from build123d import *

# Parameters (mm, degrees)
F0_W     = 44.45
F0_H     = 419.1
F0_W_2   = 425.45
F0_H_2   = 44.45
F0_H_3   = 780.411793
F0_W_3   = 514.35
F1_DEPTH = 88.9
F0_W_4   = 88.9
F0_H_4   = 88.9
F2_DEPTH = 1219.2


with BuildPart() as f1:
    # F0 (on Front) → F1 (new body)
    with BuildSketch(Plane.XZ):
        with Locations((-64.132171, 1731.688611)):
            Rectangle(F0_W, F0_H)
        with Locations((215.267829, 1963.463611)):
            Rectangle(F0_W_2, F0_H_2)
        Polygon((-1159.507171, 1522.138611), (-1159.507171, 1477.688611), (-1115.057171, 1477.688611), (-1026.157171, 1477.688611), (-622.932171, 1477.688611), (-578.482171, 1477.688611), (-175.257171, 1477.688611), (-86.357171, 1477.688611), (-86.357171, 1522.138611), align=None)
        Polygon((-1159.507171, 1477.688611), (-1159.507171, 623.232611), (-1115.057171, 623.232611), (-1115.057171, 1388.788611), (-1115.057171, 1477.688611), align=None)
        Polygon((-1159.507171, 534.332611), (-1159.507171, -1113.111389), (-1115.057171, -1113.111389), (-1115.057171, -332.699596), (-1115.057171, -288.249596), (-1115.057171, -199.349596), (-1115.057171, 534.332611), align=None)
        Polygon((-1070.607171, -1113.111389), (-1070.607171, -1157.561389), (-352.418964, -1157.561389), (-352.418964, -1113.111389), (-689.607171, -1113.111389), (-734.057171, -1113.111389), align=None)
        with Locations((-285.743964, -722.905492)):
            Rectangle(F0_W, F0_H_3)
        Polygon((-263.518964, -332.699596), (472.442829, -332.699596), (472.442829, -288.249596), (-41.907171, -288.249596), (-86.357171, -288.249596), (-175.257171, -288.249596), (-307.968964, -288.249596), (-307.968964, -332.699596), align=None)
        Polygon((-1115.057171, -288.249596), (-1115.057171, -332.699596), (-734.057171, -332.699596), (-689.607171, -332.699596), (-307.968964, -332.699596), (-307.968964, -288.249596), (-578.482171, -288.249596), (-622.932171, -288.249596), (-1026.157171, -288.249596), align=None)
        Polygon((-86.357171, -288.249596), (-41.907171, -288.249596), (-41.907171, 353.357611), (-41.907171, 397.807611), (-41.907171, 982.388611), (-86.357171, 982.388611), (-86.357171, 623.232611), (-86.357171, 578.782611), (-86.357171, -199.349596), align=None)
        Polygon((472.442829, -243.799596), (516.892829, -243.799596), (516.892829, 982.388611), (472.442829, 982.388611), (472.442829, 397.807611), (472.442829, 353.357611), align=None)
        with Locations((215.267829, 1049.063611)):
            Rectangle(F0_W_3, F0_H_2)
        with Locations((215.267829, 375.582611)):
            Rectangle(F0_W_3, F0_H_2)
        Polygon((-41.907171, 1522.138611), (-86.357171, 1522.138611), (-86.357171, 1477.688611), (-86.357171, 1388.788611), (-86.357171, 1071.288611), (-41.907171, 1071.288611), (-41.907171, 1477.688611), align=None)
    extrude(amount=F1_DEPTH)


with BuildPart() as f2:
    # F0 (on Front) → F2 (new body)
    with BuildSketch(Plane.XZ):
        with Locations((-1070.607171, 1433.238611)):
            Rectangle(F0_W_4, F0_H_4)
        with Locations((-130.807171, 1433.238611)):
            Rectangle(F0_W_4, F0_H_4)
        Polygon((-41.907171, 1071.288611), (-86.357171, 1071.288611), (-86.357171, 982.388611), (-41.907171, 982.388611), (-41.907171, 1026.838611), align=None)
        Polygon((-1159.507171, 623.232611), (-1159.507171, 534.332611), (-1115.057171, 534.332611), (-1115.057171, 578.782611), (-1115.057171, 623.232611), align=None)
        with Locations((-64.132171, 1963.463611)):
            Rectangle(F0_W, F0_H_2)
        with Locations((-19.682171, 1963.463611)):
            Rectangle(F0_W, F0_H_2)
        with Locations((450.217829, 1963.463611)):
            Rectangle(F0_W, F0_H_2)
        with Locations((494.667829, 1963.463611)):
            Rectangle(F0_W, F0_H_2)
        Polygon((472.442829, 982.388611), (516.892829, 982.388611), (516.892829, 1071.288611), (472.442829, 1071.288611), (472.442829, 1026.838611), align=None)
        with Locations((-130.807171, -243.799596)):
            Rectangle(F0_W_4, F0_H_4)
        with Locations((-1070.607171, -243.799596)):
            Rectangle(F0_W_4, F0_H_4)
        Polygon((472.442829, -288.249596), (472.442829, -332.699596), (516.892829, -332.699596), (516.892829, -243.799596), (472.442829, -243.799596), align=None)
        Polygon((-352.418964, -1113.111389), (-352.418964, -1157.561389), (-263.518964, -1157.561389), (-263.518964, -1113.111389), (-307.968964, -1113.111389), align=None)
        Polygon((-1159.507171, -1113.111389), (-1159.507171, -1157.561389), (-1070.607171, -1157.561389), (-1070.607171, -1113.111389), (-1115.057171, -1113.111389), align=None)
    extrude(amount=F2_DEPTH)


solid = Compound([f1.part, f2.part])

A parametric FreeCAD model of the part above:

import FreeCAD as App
import Part
import Sketcher

V = App.Vector
Q = App.Units.Quantity

doc = App.newDocument("Part")
body = doc.addObject("PartDesign::Body", "Body")
body.AllowCompound = True

# Sketch on XZ plane
sketch1 = body.newObject("Sketcher::SketchObject", "Sketch")
sketch1.AttachmentSupport = (doc.getObject("XZ_Plane"), [""])
sketch1.MapMode = "FlatFace"
sketch1.addGeometry([
    Part.LineSegment(V(-86, 1941, 0), V(-86, 1522, 0)),  # 0
    Part.LineSegment(V(-86, 1522, 0), V(-1160, 1522, 0)),  # 1
    Part.LineSegment(V(-1160, 1522, 0), V(-1160, 623, 0)),  # 2
    Part.LineSegment(V(-1160, 623, 0), V(-1115, 623, 0)),  # 3
    Part.LineSegment(V(-1115, 623, 0), V(-1115, 1478, 0)),  # 4
    Part.LineSegment(V(-1115, 1478, 0), V(-86, 1478, 0)),  # 5
    Part.LineSegment(V(-86, 1478, 0), V(-86, 1071, 0)),  # 6
    Part.LineSegment(V(-86, 1071, 0), V(-42, 1071, 0)),  # 7
    Part.LineSegment(V(-42, 1071, 0), V(-42, 1941, 0)),  # 8
    Part.LineSegment(V(-42, 1941, 0), V(-86, 1941, 0)),  # 9
    Part.LineSegment(V(3, 1986, 0), V(3, 1941, 0)),  # 10
    Part.LineSegment(V(3, 1941, 0), V(428, 1941, 0)),  # 11
    Part.LineSegment(V(428, 1941, 0), V(428, 1986, 0)),  # 12
    Part.LineSegment(V(428, 1986, 0), V(3, 1986, 0)),  # 13
    Part.LineSegment(V(-1160, 534, 0), V(-1160, -1113, 0)),  # 14
    Part.LineSegment(V(-1160, -1113, 0), V(-1115, -1113, 0)),  # 15
    Part.LineSegment(V(-1115, -1113, 0), V(-1115, -333, 0)),  # 16
    Part.LineSegment(V(-1115, -333, 0), V(-308, -333, 0)),  # 17
    Part.LineSegment(V(-308, -333, 0), V(-308, -1113, 0)),  # 18
    Part.LineSegment(V(-308, -1113, 0), V(-264, -1113, 0)),  # 19
    Part.LineSegment(V(-264, -1113, 0), V(-264, -333, 0)),  # 20
    Part.LineSegment(V(-264, -333, 0), V(472, -333, 0)),  # 21
    Part.LineSegment(V(472, -333, 0), V(472, -288, 0)),  # 22
    Part.LineSegment(V(472, -288, 0), V(-42, -288, 0)),  # 23
    Part.LineSegment(V(-42, -288, 0), V(-42, 353, 0)),  # 24
    Part.LineSegment(V(-42, 353, 0), V(472, 353, 0)),  # 25
    Part.LineSegment(V(472, 353, 0), V(472, -244, 0)),  # 26
    Part.LineSegment(V(472, -244, 0), V(517, -244, 0)),  # 27
    Part.LineSegment(V(517, -244, 0), V(517, 982, 0)),  # 28
    Part.LineSegment(V(517, 982, 0), V(472, 982, 0)),  # 29
    Part.LineSegment(V(472, 982, 0), V(472, 398, 0)),  # 30
    Part.LineSegment(V(472, 398, 0), V(-42, 398, 0)),  # 31
    Part.LineSegment(V(-42, 398, 0), V(-42, 982, 0)),  # 32
    Part.LineSegment(V(-42, 982, 0), V(-86, 982, 0)),  # 33
    Part.LineSegment(V(-86, 982, 0), V(-86, -288, 0)),  # 34
    Part.LineSegment(V(-86, -288, 0), V(-1115, -288, 0)),  # 35
    Part.LineSegment(V(-1115, -288, 0), V(-1115, 534, 0)),  # 36
    Part.LineSegment(V(-1115, 534, 0), V(-1160, 534, 0)),  # 37
    Part.LineSegment(V(-1071, -1113, 0), V(-1071, -1158, 0)),  # 38
    Part.LineSegment(V(-1071, -1158, 0), V(-352, -1158, 0)),  # 39
    Part.LineSegment(V(-352, -1158, 0), V(-352, -1113, 0)),  # 40
    Part.LineSegment(V(-352, -1113, 0), V(-1071, -1113, 0)),  # 41
    Part.LineSegment(V(-42, 1071, 0), V(-42, 1027, 0)),  # 42
    Part.LineSegment(V(-42, 1027, 0), V(472, 1027, 0)),  # 43
    Part.LineSegment(V(472, 1027, 0), V(472, 1071, 0)),  # 44
    Part.LineSegment(V(472, 1071, 0), V(-42, 1071, 0)),  # 45
], False)
sketch1.addConstraint([
    Sketcher.Constraint("Coincident", 0, 2, 1, 1),
    Sketcher.Constraint("Coincident", 1, 2, 2, 1),
    Sketcher.Constraint("Coincident", 2, 2, 3, 1),
    Sketcher.Constraint("Coincident", 3, 2, 4, 1),
    Sketcher.Constraint("Coincident", 4, 2, 5, 1),
    Sketcher.Constraint("Coincident", 5, 2, 6, 1),
    Sketcher.Constraint("Coincident", 6, 2, 7, 1),
    Sketcher.Constraint("Coincident", 7, 2, 8, 1),
    Sketcher.Constraint("Coincident", 8, 2, 9, 1),
    Sketcher.Constraint("Coincident", 9, 2, 0, 1),
    Sketcher.Constraint("Coincident", 10, 2, 11, 1),
    Sketcher.Constraint("Coincident", 11, 2, 12, 1),
    Sketcher.Constraint("Coincident", 12, 2, 13, 1),
    Sketcher.Constraint("Coincident", 13, 2, 10, 1),
    Sketcher.Constraint("Coincident", 14, 2, 15, 1),
    Sketcher.Constraint("Coincident", 15, 2, 16, 1),
    Sketcher.Constraint("Coincident", 16, 2, 17, 1),
    Sketcher.Constraint("Coincident", 17, 2, 18, 1),
    Sketcher.Constraint("Coincident", 18, 2, 19, 1),
    Sketcher.Constraint("Coincident", 19, 2, 20, 1),
    Sketcher.Constraint("Coincident", 20, 2, 21, 1),
    Sketcher.Constraint("Coincident", 21, 2, 22, 1),
    Sketcher.Constraint("Coincident", 22, 2, 23, 1),
    Sketcher.Constraint("Coincident", 23, 2, 24, 1),
    Sketcher.Constraint("Coincident", 24, 2, 25, 1),
    Sketcher.Constraint("Coincident", 25, 2, 26, 1),
    Sketcher.Constraint("Coincident", 26, 2, 27, 1),
    Sketcher.Constraint("Coincident", 27, 2, 28, 1),
    Sketcher.Constraint("Coincident", 28, 2, 29, 1),
    Sketcher.Constraint("Coincident", 29, 2, 30, 1),
    Sketcher.Constraint("Coincident", 30, 2, 31, 1),
    Sketcher.Constraint("Coincident", 31, 2, 32, 1),
    Sketcher.Constraint("Coincident", 32, 2, 33, 1),
    Sketcher.Constraint("Coincident", 33, 2, 34, 1),
    Sketcher.Constraint("Coincident", 34, 2, 35, 1),
    Sketcher.Constraint("Coincident", 35, 2, 36, 1),
    Sketcher.Constraint("Coincident", 36, 2, 37, 1),
    Sketcher.Constraint("Coincident", 37, 2, 14, 1),
    Sketcher.Constraint("Coincident", 38, 2, 39, 1),
    Sketcher.Constraint("Coincident", 39, 2, 40, 1),
    Sketcher.Constraint("Coincident", 40, 2, 41, 1),
    Sketcher.Constraint("Coincident", 41, 2, 38, 1),
    Sketcher.Constraint("Coincident", 42, 2, 43, 1),
    Sketcher.Constraint("Coincident", 43, 2, 44, 1),
    Sketcher.Constraint("Coincident", 44, 2, 45, 1),
    Sketcher.Constraint("Coincident", 45, 2, 42, 1),
    Sketcher.Constraint("Vertical", 0),
    Sketcher.Constraint("Horizontal", 1),
    Sketcher.Constraint("Vertical", 2),
    Sketcher.Constraint("Horizontal", 3),
    Sketcher.Constraint("Vertical", 4),
    Sketcher.Constraint("Horizontal", 5),
    Sketcher.Constraint("Vertical", 6),
    Sketcher.Constraint("Horizontal", 7),
    Sketcher.Constraint("Vertical", 8),
    Sketcher.Constraint("Horizontal", 9),
    Sketcher.Constraint("Vertical", 10),
    Sketcher.Constraint("Horizontal", 11),
    Sketcher.Constraint("Vertical", 12),
    Sketcher.Constraint("Horizontal", 13),
    Sketcher.Constraint("Vertical", 14),
    Sketcher.Constraint("Horizontal", 15),
    Sketcher.Constraint("Vertical", 16),
    Sketcher.Constraint("Horizontal", 17),
    Sketcher.Constraint("Vertical", 18),
    Sketcher.Constraint("Horizontal", 19),
    Sketcher.Constraint("Vertical", 20),
    Sketcher.Constraint("Horizontal", 21),
    Sketcher.Constraint("Vertical", 22),
    Sketcher.Constraint("Horizontal", 23),
    Sketcher.Constraint("Vertical", 24),
    Sketcher.Constraint("Horizontal", 25),
    Sketcher.Constraint("Vertical", 26),
    Sketcher.Constraint("Horizontal", 27),
    Sketcher.Constraint("Vertical", 28),
    Sketcher.Constraint("Horizontal", 29),
    Sketcher.Constraint("Vertical", 30),
    Sketcher.Constraint("Horizontal", 31),
    Sketcher.Constraint("Vertical", 32),
    Sketcher.Constraint("Horizontal", 33),
    Sketcher.Constraint("Vertical", 34),
    Sketcher.Constraint("Horizontal", 35),
    Sketcher.Constraint("Vertical", 36),
    Sketcher.Constraint("Horizontal", 37),
    Sketcher.Constraint("Vertical", 38),
    Sketcher.Constraint("Horizontal", 39),
    Sketcher.Constraint("Vertical", 40),
    Sketcher.Constraint("Horizontal", 41),
    Sketcher.Constraint("Vertical", 42),
    Sketcher.Constraint("Horizontal", 43),
    Sketcher.Constraint("Vertical", 44),
    Sketcher.Constraint("Horizontal", 45),
    Sketcher.Constraint("Coincident", 45, 2, 7, 2),
    Sketcher.Constraint("Horizontal", 9, 2, 10, 2),
    Sketcher.Constraint("Horizontal", 15, 2, 18, 2),
    Sketcher.Constraint("Horizontal", 17, 2, 20, 2),
    Sketcher.Constraint("Horizontal", 29, 2, 32, 2),
    Sketcher.Constraint("Horizontal", 23, 2, 34, 2),
    Sketcher.Constraint("Horizontal", 19, 2, 40, 2),
    Sketcher.Constraint("Vertical", 0, 2, 5, 2),
    Sketcher.Constraint("Vertical", 2, 2, 14, 2),
    Sketcher.Constraint("Vertical", 4, 2, 15, 2),
    Sketcher.Constraint("Vertical", 8, 2, 23, 2),
    Sketcher.Constraint("Vertical", 22, 2, 25, 2),
    Sketcher.Constraint("Vertical", 26, 2, 29, 2),
    Sketcher.Constraint("Vertical", 24, 2, 31, 2),
    Sketcher.Constraint("Vertical", 9, 2, 33, 2),
    Sketcher.Constraint("Vertical", 16, 2, 35, 2),
    Sketcher.Constraint("Vertical", 30, 2, 43, 2),
    Sketcher.Constraint("Equal", 3, 7),
    Sketcher.Constraint("Equal", 15, 19),
    Sketcher.Constraint("Equal", 19, 27),
    Sketcher.Constraint("Equal", 37, 10),
    Sketcher.Constraint("Equal", 12, 22),
    Sketcher.Constraint("Equal", 22, 38),
    Sketcher.Constraint("Equal", 40, 42),
    Sketcher.Constraint("DistanceY", 6, 2, 6, 1, Q("16 in")),
    Sketcher.Constraint("DistanceX", 5, 1, 5, 2, Q("40.5 in")),
    Sketcher.Constraint("DistanceY", 0, 2, 0, 1, Q("16.5 in")),
    Sketcher.Constraint("DistanceY", 14, 2, 6, 2, Q("86 in")),
    Sketcher.Constraint("DistanceX", 14, 2, 7, 2, Q("44 in")),
    Sketcher.Constraint("DistanceX", 23, 2, 27, 2, Q("22 in")),
    Sketcher.Constraint("DistanceX", 11, 1, 11, 2, Q("16.75 in")),
    Sketcher.Constraint("DistanceY", 2, 2, 2, 1, Q("35.39 in")),
    Sketcher.Constraint("DistanceY", 4, 1, 4, 2, Q("33.64 in")),
    Sketcher.Constraint("DistanceY", 14, 2, 14, 1, Q("64.86 in")),
    Sketcher.Constraint("DistanceX", 9, 2, 10, 2, Q("3.5 in")),
    Sketcher.Constraint("DistanceY", 21, 2, 26, 2, Q("3.5 in")),
    Sketcher.Constraint("DistanceY", 28, 2, 7, 2, Q("3.5 in")),
    Sketcher.Constraint("DistanceX", 14, 2, 38, 2, Q("3.5 in")),
    Sketcher.Constraint("DistanceX", 39, 2, 19, 2, Q("3.5 in")),
    Sketcher.Constraint("DistanceY", 30, 2, 30, 1, Q("23.015 in")),
    Sketcher.Constraint("DistanceY", 25, 2, 30, 2, Q("1.75 in")),
    Sketcher.Constraint("DistanceX", 17, 1, 17, 2, 807.088207),
    Sketcher.Constraint("DistanceY", 16, 1, 16, 2, 780.411793),
    Sketcher.Constraint("DistanceX", 0, 2, -1, 1, 86.357171),
    Sketcher.Constraint("DistanceY", -1, 1, 0, 2, 1522.138611),
])
pad1 = body.newObject("PartDesign::Pad", "Pad")
pad1.Profile = sketch1
pad1.Length = Q("3.5 in")
body2 = doc.addObject("PartDesign::Body", "Body001")
body2.AllowCompound = True

# Sketch on XZ plane
sketch2 = body2.newObject("Sketcher::SketchObject", "Sketch001")
sketch2.AttachmentSupport = (doc.getObject("XZ_Plane001"), [""])
sketch2.MapMode = "FlatFace"
sketch2.addGeometry([
    Part.LineSegment(V(-1115, 1478, 0), V(-1115, 1389, 0)),  # 0
    Part.LineSegment(V(-1115, 1389, 0), V(-1026, 1389, 0)),  # 1
    Part.LineSegment(V(-1026, 1389, 0), V(-1026, 1478, 0)),  # 2
    Part.LineSegment(V(-1026, 1478, 0), V(-1115, 1478, 0)),  # 3
    Part.LineSegment(V(-175, 1478, 0), V(-175, 1389, 0)),  # 4
    Part.LineSegment(V(-175, 1389, 0), V(-86, 1389, 0)),  # 5
    Part.LineSegment(V(-86, 1389, 0), V(-86, 1478, 0)),  # 6
    Part.LineSegment(V(-86, 1478, 0), V(-175, 1478, 0)),  # 7
    Part.LineSegment(V(-42, 1071, 0), V(-86, 1071, 0)),  # 8
    Part.LineSegment(V(-86, 1071, 0), V(-86, 982, 0)),  # 9
    Part.LineSegment(V(-86, 982, 0), V(-42, 982, 0)),  # 10
    Part.LineSegment(V(-42, 982, 0), V(-42, 1071, 0)),  # 11
    Part.LineSegment(V(-1160, 623, 0), V(-1160, 534, 0)),  # 12
    Part.LineSegment(V(-1160, 534, 0), V(-1115, 534, 0)),  # 13
    Part.LineSegment(V(-1115, 534, 0), V(-1115, 623, 0)),  # 14
    Part.LineSegment(V(-1115, 623, 0), V(-1160, 623, 0)),  # 15
    Part.LineSegment(V(-86, 1986, 0), V(-86, 1941, 0)),  # 16
    Part.LineSegment(V(-86, 1941, 0), V(3, 1941, 0)),  # 17
    Part.LineSegment(V(3, 1941, 0), V(3, 1986, 0)),  # 18
    Part.LineSegment(V(3, 1986, 0), V(-86, 1986, 0)),  # 19
    Part.LineSegment(V(428, 1986, 0), V(428, 1941, 0)),  # 20
    Part.LineSegment(V(428, 1941, 0), V(517, 1941, 0)),  # 21
    Part.LineSegment(V(517, 1941, 0), V(517, 1986, 0)),  # 22
    Part.LineSegment(V(517, 1986, 0), V(428, 1986, 0)),  # 23
    Part.LineSegment(V(472, 982, 0), V(517, 982, 0)),  # 24
    Part.LineSegment(V(517, 982, 0), V(517, 1071, 0)),  # 25
    Part.LineSegment(V(517, 1071, 0), V(472, 1071, 0)),  # 26
    Part.LineSegment(V(472, 1071, 0), V(472, 982, 0)),  # 27
    Part.LineSegment(V(-175, -199, 0), V(-175, -288, 0)),  # 28
    Part.LineSegment(V(-175, -288, 0), V(-86, -288, 0)),  # 29
    Part.LineSegment(V(-86, -288, 0), V(-86, -199, 0)),  # 30
    Part.LineSegment(V(-86, -199, 0), V(-175, -199, 0)),  # 31
    Part.LineSegment(V(-1115, -199, 0), V(-1115, -288, 0)),  # 32
    Part.LineSegment(V(-1115, -288, 0), V(-1026, -288, 0)),  # 33
    Part.LineSegment(V(-1026, -288, 0), V(-1026, -199, 0)),  # 34
    Part.LineSegment(V(-1026, -199, 0), V(-1115, -199, 0)),  # 35
    Part.LineSegment(V(472, -333, 0), V(517, -333, 0)),  # 36
    Part.LineSegment(V(517, -333, 0), V(517, -244, 0)),  # 37
    Part.LineSegment(V(517, -244, 0), V(472, -244, 0)),  # 38
    Part.LineSegment(V(472, -244, 0), V(472, -333, 0)),  # 39
    Part.LineSegment(V(-352, -1113, 0), V(-352, -1158, 0)),  # 40
    Part.LineSegment(V(-352, -1158, 0), V(-264, -1158, 0)),  # 41
    Part.LineSegment(V(-264, -1158, 0), V(-264, -1113, 0)),  # 42
    Part.LineSegment(V(-264, -1113, 0), V(-352, -1113, 0)),  # 43
    Part.LineSegment(V(-1160, -1113, 0), V(-1160, -1158, 0)),  # 44
    Part.LineSegment(V(-1160, -1158, 0), V(-1071, -1158, 0)),  # 45
    Part.LineSegment(V(-1071, -1158, 0), V(-1071, -1113, 0)),  # 46
    Part.LineSegment(V(-1071, -1113, 0), V(-1160, -1113, 0)),  # 47
], False)
sketch2.addConstraint([
    Sketcher.Constraint("Coincident", 0, 2, 1, 1),
    Sketcher.Constraint("Coincident", 1, 2, 2, 1),
    Sketcher.Constraint("Coincident", 2, 2, 3, 1),
    Sketcher.Constraint("Coincident", 3, 2, 0, 1),
    Sketcher.Constraint("Coincident", 4, 2, 5, 1),
    Sketcher.Constraint("Coincident", 5, 2, 6, 1),
    Sketcher.Constraint("Coincident", 6, 2, 7, 1),
    Sketcher.Constraint("Coincident", 7, 2, 4, 1),
    Sketcher.Constraint("Coincident", 8, 2, 9, 1),
    Sketcher.Constraint("Coincident", 9, 2, 10, 1),
    Sketcher.Constraint("Coincident", 10, 2, 11, 1),
    Sketcher.Constraint("Coincident", 11, 2, 8, 1),
    Sketcher.Constraint("Coincident", 12, 2, 13, 1),
    Sketcher.Constraint("Coincident", 13, 2, 14, 1),
    Sketcher.Constraint("Coincident", 14, 2, 15, 1),
    Sketcher.Constraint("Coincident", 15, 2, 12, 1),
    Sketcher.Constraint("Coincident", 16, 2, 17, 1),
    Sketcher.Constraint("Coincident", 17, 2, 18, 1),
    Sketcher.Constraint("Coincident", 18, 2, 19, 1),
    Sketcher.Constraint("Coincident", 19, 2, 16, 1),
    Sketcher.Constraint("Coincident", 20, 2, 21, 1),
    Sketcher.Constraint("Coincident", 21, 2, 22, 1),
    Sketcher.Constraint("Coincident", 22, 2, 23, 1),
    Sketcher.Constraint("Coincident", 23, 2, 20, 1),
    Sketcher.Constraint("Coincident", 24, 2, 25, 1),
    Sketcher.Constraint("Coincident", 25, 2, 26, 1),
    Sketcher.Constraint("Coincident", 26, 2, 27, 1),
    Sketcher.Constraint("Coincident", 27, 2, 24, 1),
    Sketcher.Constraint("Coincident", 28, 2, 29, 1),
    Sketcher.Constraint("Coincident", 29, 2, 30, 1),
    Sketcher.Constraint("Coincident", 30, 2, 31, 1),
    Sketcher.Constraint("Coincident", 31, 2, 28, 1),
    Sketcher.Constraint("Coincident", 32, 2, 33, 1),
    Sketcher.Constraint("Coincident", 33, 2, 34, 1),
    Sketcher.Constraint("Coincident", 34, 2, 35, 1),
    Sketcher.Constraint("Coincident", 35, 2, 32, 1),
    Sketcher.Constraint("Coincident", 36, 2, 37, 1),
    Sketcher.Constraint("Coincident", 37, 2, 38, 1),
    Sketcher.Constraint("Coincident", 38, 2, 39, 1),
    Sketcher.Constraint("Coincident", 39, 2, 36, 1),
    Sketcher.Constraint("Coincident", 40, 2, 41, 1),
    Sketcher.Constraint("Coincident", 41, 2, 42, 1),
    Sketcher.Constraint("Coincident", 42, 2, 43, 1),
    Sketcher.Constraint("Coincident", 43, 2, 40, 1),
    Sketcher.Constraint("Coincident", 44, 2, 45, 1),
    Sketcher.Constraint("Coincident", 45, 2, 46, 1),
    Sketcher.Constraint("Coincident", 46, 2, 47, 1),
    Sketcher.Constraint("Coincident", 47, 2, 44, 1),
    Sketcher.Constraint("Vertical", 0),
    Sketcher.Constraint("Horizontal", 1),
    Sketcher.Constraint("Vertical", 2),
    Sketcher.Constraint("Horizontal", 3),
    Sketcher.Constraint("Vertical", 4),
    Sketcher.Constraint("Horizontal", 5),
    Sketcher.Constraint("Vertical", 6),
    Sketcher.Constraint("Horizontal", 7),
    Sketcher.Constraint("Horizontal", 8),
    Sketcher.Constraint("Vertical", 9),
    Sketcher.Constraint("Horizontal", 10),
    Sketcher.Constraint("Vertical", 11),
    Sketcher.Constraint("Vertical", 12),
    Sketcher.Constraint("Horizontal", 13),
    Sketcher.Constraint("Vertical", 14),
    Sketcher.Constraint("Horizontal", 15),
    Sketcher.Constraint("Vertical", 16),
    Sketcher.Constraint("Horizontal", 17),
    Sketcher.Constraint("Vertical", 18),
    Sketcher.Constraint("Horizontal", 19),
    Sketcher.Constraint("Vertical", 20),
    Sketcher.Constraint("Horizontal", 21),
    Sketcher.Constraint("Vertical", 22),
    Sketcher.Constraint("Horizontal", 23),
    Sketcher.Constraint("Horizontal", 24),
    Sketcher.Constraint("Vertical", 25),
    Sketcher.Constraint("Horizontal", 26),
    Sketcher.Constraint("Vertical", 27),
    Sketcher.Constraint("Vertical", 28),
    Sketcher.Constraint("Horizontal", 29),
    Sketcher.Constraint("Vertical", 30),
    Sketcher.Constraint("Horizontal", 31),
    Sketcher.Constraint("Vertical", 32),
    Sketcher.Constraint("Horizontal", 33),
    Sketcher.Constraint("Vertical", 34),
    Sketcher.Constraint("Horizontal", 35),
    Sketcher.Constraint("Horizontal", 36),
    Sketcher.Constraint("Vertical", 37),
    Sketcher.Constraint("Horizontal", 38),
    Sketcher.Constraint("Vertical", 39),
    Sketcher.Constraint("Vertical", 40),
    Sketcher.Constraint("Horizontal", 41),
    Sketcher.Constraint("Vertical", 42),
    Sketcher.Constraint("Horizontal", 43),
    Sketcher.Constraint("Vertical", 44),
    Sketcher.Constraint("Horizontal", 45),
    Sketcher.Constraint("Vertical", 46),
    Sketcher.Constraint("Horizontal", 47),
    Sketcher.Constraint("Horizontal", 1, 2, 4, 2),
    Sketcher.Constraint("Horizontal", 3, 2, 6, 2),
    Sketcher.Constraint("Horizontal", 17, 2, 20, 2),
    Sketcher.Constraint("Horizontal", 19, 2, 22, 2),
    Sketcher.Constraint("Horizontal", 10, 2, 24, 2),
    Sketcher.Constraint("Horizontal", 11, 2, 25, 2),
    Sketcher.Constraint("Horizontal", 29, 2, 32, 2),
    Sketcher.Constraint("Horizontal", 31, 2, 34, 2),
    Sketcher.Constraint("Horizontal", 41, 2, 44, 2),
    Sketcher.Constraint("Horizontal", 43, 2, 46, 2),
    Sketcher.Constraint("Vertical", 6, 2, 8, 2),
    Sketcher.Constraint("Vertical", 3, 2, 13, 2),
    Sketcher.Constraint("Vertical", 9, 2, 16, 2),
    Sketcher.Constraint("Vertical", 22, 2, 24, 2),
    Sketcher.Constraint("Vertical", 7, 2, 28, 2),
    Sketcher.Constraint("Vertical", 19, 2, 29, 2),
    Sketcher.Constraint("Vertical", 14, 2, 32, 2),
    Sketcher.Constraint("Vertical", 2, 2, 33, 2),
    Sketcher.Constraint("Vertical", 25, 2, 36, 2),
    Sketcher.Constraint("Vertical", 27, 2, 38, 2),
    Sketcher.Constraint("Vertical", 15, 2, 44, 2),
    Sketcher.Constraint("Equal", 3, 5),
    Sketcher.Constraint("Equal", 10, 13),
    Sketcher.Constraint("Equal", 7, 17),
    Sketcher.Constraint("Equal", 19, 21),
    Sketcher.Constraint("Equal", 15, 24),
    Sketcher.Constraint("Equal", 35, 41),
    Sketcher.Constraint("Equal", 43, 45),
    Sketcher.Constraint("Equal", 47, 0),
    Sketcher.Constraint("Equal", 6, 9),
    Sketcher.Constraint("Equal", 11, 12),
    Sketcher.Constraint("Equal", 38, 16),
    Sketcher.Constraint("Equal", 27, 28),
    Sketcher.Constraint("Equal", 34, 37),
    Sketcher.Constraint("Equal", 22, 40),
    Sketcher.Constraint("DistanceX", 1, 1, 1, 2, Q("3.5 in")),
    Sketcher.Constraint("DistanceX", 0, 2, 4, 2, Q("37 in")),
    Sketcher.Constraint("DistanceY", 8, 2, 6, 2, Q("16 in")),
    Sketcher.Constraint("DistanceY", 6, 2, 18, 2, Q("20 in")),
    Sketcher.Constraint("DistanceX", 10, 2, 24, 2, Q("22 in")),
    Sketcher.Constraint("DistanceX", 8, 2, 8, 1, Q("1.75 in")),
    Sketcher.Constraint("DistanceY", 12, 2, 0, 2, Q("33.64 in")),
    Sketcher.Constraint("DistanceY", 36, 2, 29, 2, Q("1.75 in")),
    Sketcher.Constraint("DistanceX", 0, 2, -1, 1, 1115.057171),
    Sketcher.Constraint("DistanceY", -1, 1, 0, 2, 1388.788611),
    Sketcher.Constraint("DistanceY", 40, 2, -1, 1, 1157.561389),
    Sketcher.Constraint("DistanceY", 28, 2, -1, 1, 288.249596),
    Sketcher.Constraint("DistanceX", 40, 2, -1, 1, 352.418964),
])
pad2 = body2.newObject("PartDesign::Pad", "Pad001")
pad2.Profile = sketch2
pad2.Length = Q("48 in")

doc.recompute()
